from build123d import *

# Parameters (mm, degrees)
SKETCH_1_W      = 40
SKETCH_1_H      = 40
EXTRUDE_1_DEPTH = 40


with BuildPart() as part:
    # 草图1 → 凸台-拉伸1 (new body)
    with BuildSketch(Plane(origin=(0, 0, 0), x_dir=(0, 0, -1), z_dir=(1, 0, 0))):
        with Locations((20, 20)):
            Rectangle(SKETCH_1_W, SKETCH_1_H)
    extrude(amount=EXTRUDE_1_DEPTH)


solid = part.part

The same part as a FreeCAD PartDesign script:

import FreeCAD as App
import Part
import Sketcher

doc = App.newDocument("Part")
body = doc.addObject("PartDesign::Body", "Body")

sketch1 = doc.addObject("Sketcher::SketchObject", "Sketch")
body.addObject(sketch1)
sketch1.AttachmentSupport = (doc.YZ_Plane, [""])
sketch1.MapMode = "FlatFace"
sketch1.addGeometry(Part.LineSegment(App.Vector(40, 0, 0), App.Vector(0, 0, 0)), False)
sketch1.addGeometry(Part.LineSegment(App.Vector(0, 0, 0), App.Vector(0, -40, 0)), False)
sketch1.addGeometry(Part.LineSegment(App.Vector(0, -40, 0), App.Vector(40, -40, 0)), False)
sketch1.addGeometry(Part.LineSegment(App.Vector(40, -40, 0), App.Vector(40, 0, 0)), False)
sketch1.addConstraint(Sketcher.Constraint("Coincident", 0, 2, 1, 1))
sketch1.addConstraint(Sketcher.Constraint("Coincident", 1, 2, 2, 1))
sketch1.addConstraint(Sketcher.Constraint("Coincident", 2, 2, 3, 1))
sketch1.addConstraint(Sketcher.Constraint("Coincident", 3, 2, 0, 1))
sketch1.addConstraint(Sketcher.Constraint("Horizontal", 0))
sketch1.addConstraint(Sketcher.Constraint("Vertical", 1))
sketch1.addConstraint(Sketcher.Constraint("Horizontal", 2))
sketch1.addConstraint(Sketcher.Constraint("Vertical", 3))
sketch1.addConstraint(Sketcher.Constraint("Coincident", 0, 2, -1, 1))
sketch1.addConstraint(Sketcher.Constraint("Equal", 2, 1))
sketch1.addConstraint(Sketcher.Constraint("DistanceX", 0, 2, 0, 1, 40.0))
pad1 = doc.addObject("PartDesign::Pad", "Pad")
body.addObject(pad1)
pad1.Profile = sketch1
pad1.Length = 40

doc.recompute()
